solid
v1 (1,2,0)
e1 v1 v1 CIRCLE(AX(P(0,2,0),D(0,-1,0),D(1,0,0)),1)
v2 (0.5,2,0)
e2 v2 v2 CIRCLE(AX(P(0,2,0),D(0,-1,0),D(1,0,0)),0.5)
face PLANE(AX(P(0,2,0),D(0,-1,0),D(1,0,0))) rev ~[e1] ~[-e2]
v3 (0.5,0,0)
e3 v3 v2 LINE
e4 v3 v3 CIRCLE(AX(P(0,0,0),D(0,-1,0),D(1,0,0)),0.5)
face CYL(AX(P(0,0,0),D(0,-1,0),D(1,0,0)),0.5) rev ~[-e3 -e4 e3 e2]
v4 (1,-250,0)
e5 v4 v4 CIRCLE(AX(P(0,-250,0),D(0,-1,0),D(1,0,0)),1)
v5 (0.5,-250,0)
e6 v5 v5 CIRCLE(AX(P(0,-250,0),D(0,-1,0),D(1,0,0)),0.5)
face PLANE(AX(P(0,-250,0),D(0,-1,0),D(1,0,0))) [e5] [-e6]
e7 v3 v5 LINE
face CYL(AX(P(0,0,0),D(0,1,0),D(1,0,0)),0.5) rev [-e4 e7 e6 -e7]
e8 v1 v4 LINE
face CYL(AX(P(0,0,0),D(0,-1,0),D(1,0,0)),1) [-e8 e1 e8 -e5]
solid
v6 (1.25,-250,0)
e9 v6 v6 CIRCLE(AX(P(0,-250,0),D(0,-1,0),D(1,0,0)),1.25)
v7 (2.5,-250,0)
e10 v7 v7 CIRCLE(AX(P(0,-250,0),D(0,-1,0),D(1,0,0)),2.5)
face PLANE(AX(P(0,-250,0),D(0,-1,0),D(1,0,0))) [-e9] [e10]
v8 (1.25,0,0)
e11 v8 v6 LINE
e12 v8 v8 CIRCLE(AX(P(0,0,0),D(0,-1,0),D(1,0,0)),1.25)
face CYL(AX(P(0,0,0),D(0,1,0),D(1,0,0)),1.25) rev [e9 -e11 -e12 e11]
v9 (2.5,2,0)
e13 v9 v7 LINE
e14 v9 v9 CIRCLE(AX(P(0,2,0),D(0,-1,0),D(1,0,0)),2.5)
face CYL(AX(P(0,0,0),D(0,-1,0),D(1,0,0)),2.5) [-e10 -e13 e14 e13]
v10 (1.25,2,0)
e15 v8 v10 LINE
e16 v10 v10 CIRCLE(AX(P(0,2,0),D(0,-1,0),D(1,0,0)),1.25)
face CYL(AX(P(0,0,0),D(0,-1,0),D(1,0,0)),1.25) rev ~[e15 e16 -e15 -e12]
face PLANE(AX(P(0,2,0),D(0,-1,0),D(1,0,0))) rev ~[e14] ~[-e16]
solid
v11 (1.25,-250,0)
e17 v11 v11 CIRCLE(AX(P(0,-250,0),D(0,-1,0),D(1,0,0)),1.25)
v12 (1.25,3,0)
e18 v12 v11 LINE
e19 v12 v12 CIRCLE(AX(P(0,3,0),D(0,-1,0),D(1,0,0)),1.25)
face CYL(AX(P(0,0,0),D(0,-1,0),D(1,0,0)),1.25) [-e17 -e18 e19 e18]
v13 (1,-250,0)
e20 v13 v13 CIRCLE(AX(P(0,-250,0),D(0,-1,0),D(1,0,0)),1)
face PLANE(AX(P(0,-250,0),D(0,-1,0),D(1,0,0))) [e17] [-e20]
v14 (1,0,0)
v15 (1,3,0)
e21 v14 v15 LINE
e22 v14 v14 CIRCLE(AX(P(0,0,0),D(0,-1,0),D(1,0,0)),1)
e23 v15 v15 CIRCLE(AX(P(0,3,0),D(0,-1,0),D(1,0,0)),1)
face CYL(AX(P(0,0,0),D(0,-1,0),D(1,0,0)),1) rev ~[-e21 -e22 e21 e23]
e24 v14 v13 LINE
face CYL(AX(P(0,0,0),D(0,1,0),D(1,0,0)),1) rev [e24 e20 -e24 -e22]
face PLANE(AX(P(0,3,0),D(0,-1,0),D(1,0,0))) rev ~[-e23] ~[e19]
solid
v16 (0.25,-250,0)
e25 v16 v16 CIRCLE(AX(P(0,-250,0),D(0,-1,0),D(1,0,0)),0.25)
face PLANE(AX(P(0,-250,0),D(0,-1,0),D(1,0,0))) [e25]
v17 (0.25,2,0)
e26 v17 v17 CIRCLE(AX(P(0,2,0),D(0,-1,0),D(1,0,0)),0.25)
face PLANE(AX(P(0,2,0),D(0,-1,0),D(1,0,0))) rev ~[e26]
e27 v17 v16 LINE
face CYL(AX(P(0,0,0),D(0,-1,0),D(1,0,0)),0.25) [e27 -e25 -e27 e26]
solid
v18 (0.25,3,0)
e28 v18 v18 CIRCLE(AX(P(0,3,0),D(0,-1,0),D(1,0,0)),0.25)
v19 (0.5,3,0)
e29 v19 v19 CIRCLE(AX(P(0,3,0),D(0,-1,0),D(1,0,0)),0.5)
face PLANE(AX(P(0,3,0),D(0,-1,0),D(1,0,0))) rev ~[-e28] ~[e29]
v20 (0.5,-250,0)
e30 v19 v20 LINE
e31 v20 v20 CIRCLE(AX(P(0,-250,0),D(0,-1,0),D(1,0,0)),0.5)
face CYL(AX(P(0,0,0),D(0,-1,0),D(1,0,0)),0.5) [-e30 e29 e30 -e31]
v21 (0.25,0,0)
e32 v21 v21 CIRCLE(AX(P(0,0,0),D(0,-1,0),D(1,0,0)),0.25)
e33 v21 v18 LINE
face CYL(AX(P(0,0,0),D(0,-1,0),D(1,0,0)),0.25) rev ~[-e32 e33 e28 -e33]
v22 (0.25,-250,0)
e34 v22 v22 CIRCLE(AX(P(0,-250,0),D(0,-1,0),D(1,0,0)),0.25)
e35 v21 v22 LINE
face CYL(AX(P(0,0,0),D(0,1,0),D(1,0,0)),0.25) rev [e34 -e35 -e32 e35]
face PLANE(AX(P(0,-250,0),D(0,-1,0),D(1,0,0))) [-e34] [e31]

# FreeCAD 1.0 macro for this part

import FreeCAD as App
import Part
import Sketcher
Q = App.Units.Quantity

doc = App.newDocument("Part")
body = doc.addObject("PartDesign::Body", "Body")
body.AllowCompound = True

# Sketch on XZ plane
sketch1 = body.newObject("Sketcher::SketchObject", "Sketch")
sketch1.AttachmentSupport = (doc.getObject("XZ_Plane"), [""])
sketch1.MapMode = "FlatFace"
sketch1.addGeometry([
    Part.Circle(App.Vector(0, 0, 0), App.Vector(0, 0, 1), 2.5),  # 0
    Part.Circle(App.Vector(0, 0, 0), App.Vector(0, 0, 1), 1.25),  # 1
    Part.Circle(App.Vector(0, 0, 0), App.Vector(0, 0, 1), 1),  # 2
    Part.Circle(App.Vector(0, 0, 0), App.Vector(0, 0, 1), 0.5),  # 3
    Part.Circle(App.Vector(0, 0, 0), App.Vector(0, 0, 1), 0.25),  # 4
], False)
sketch1.addConstraint([
    Sketcher.Constraint("Coincident", 0, 3, -1, 1),
    Sketcher.Constraint("Coincident", 1, 3, -1, 1),
    Sketcher.Constraint("Coincident", 2, 3, -1, 1),
    Sketcher.Constraint("Coincident", 3, 3, -1, 1),
    Sketcher.Constraint("Coincident", 4, 3, -1, 1),
    Sketcher.Constraint("Diameter", 0, Q("5 mm")),
    Sketcher.Constraint("Diameter", 2, Q("2 mm")),
    Sketcher.Constraint("Diameter", 3, Q("1 mm")),
    Sketcher.Constraint("Diameter", 1, Q("2.5 mm")),
    Sketcher.Constraint("Diameter", 4, Q("0.5 mm")),
])
pad1 = body.newObject("PartDesign::Pad", "Pad")
pad1.Profile = sketch1
pad1.Type = "TwoLengths"
pad1.Length = 250
pad1.Length2 = 2
body2 = doc.addObject("PartDesign::Body", "Body001")
body2.AllowCompound = True

# Sketch on XZ plane
sketch2 = body2.newObject("Sketcher::SketchObject", "Sketch001")
sketch2.AttachmentSupport = (doc.getObject("XZ_Plane001"), [""])
sketch2.MapMode = "FlatFace"
sketch2.addGeometry([
    Part.Circle(App.Vector(0, 0, 0), App.Vector(0, 0, 1), 1.25),
    Part.Circle(App.Vector(0, 0, 0), App.Vector(0, 0, 1), 1),
    Part.Circle(App.Vector(0, 0, 0), App.Vector(0, 0, 1), 0.5),
    Part.Circle(App.Vector(0, 0, 0), App.Vector(0, 0, 1), 0.25),
], False)
sketch2.addConstraint([
    Sketcher.Constraint("Coincident", 0, 3, -1, 1),
    Sketcher.Constraint("Coincident", 1, 3, -1, 1),
    Sketcher.Constraint("Coincident", 2, 3, -1, 1),
    Sketcher.Constraint("Coincident", 3, 3, -1, 1),
    Sketcher.Constraint("Diameter", 1, Q("2 mm")),
    Sketcher.Constraint("Diameter", 2, Q("1 mm")),
    Sketcher.Constraint("Diameter", 0, Q("2.5 mm")),
    Sketcher.Constraint("Diameter", 3, Q("0.5 mm")),
])
pad2 = body2.newObject("PartDesign::Pad", "Pad001")
pad2.Profile = sketch2
pad2.Type = "TwoLengths"
pad2.Length = 250
pad2.Length2 = 3

doc.recompute()
